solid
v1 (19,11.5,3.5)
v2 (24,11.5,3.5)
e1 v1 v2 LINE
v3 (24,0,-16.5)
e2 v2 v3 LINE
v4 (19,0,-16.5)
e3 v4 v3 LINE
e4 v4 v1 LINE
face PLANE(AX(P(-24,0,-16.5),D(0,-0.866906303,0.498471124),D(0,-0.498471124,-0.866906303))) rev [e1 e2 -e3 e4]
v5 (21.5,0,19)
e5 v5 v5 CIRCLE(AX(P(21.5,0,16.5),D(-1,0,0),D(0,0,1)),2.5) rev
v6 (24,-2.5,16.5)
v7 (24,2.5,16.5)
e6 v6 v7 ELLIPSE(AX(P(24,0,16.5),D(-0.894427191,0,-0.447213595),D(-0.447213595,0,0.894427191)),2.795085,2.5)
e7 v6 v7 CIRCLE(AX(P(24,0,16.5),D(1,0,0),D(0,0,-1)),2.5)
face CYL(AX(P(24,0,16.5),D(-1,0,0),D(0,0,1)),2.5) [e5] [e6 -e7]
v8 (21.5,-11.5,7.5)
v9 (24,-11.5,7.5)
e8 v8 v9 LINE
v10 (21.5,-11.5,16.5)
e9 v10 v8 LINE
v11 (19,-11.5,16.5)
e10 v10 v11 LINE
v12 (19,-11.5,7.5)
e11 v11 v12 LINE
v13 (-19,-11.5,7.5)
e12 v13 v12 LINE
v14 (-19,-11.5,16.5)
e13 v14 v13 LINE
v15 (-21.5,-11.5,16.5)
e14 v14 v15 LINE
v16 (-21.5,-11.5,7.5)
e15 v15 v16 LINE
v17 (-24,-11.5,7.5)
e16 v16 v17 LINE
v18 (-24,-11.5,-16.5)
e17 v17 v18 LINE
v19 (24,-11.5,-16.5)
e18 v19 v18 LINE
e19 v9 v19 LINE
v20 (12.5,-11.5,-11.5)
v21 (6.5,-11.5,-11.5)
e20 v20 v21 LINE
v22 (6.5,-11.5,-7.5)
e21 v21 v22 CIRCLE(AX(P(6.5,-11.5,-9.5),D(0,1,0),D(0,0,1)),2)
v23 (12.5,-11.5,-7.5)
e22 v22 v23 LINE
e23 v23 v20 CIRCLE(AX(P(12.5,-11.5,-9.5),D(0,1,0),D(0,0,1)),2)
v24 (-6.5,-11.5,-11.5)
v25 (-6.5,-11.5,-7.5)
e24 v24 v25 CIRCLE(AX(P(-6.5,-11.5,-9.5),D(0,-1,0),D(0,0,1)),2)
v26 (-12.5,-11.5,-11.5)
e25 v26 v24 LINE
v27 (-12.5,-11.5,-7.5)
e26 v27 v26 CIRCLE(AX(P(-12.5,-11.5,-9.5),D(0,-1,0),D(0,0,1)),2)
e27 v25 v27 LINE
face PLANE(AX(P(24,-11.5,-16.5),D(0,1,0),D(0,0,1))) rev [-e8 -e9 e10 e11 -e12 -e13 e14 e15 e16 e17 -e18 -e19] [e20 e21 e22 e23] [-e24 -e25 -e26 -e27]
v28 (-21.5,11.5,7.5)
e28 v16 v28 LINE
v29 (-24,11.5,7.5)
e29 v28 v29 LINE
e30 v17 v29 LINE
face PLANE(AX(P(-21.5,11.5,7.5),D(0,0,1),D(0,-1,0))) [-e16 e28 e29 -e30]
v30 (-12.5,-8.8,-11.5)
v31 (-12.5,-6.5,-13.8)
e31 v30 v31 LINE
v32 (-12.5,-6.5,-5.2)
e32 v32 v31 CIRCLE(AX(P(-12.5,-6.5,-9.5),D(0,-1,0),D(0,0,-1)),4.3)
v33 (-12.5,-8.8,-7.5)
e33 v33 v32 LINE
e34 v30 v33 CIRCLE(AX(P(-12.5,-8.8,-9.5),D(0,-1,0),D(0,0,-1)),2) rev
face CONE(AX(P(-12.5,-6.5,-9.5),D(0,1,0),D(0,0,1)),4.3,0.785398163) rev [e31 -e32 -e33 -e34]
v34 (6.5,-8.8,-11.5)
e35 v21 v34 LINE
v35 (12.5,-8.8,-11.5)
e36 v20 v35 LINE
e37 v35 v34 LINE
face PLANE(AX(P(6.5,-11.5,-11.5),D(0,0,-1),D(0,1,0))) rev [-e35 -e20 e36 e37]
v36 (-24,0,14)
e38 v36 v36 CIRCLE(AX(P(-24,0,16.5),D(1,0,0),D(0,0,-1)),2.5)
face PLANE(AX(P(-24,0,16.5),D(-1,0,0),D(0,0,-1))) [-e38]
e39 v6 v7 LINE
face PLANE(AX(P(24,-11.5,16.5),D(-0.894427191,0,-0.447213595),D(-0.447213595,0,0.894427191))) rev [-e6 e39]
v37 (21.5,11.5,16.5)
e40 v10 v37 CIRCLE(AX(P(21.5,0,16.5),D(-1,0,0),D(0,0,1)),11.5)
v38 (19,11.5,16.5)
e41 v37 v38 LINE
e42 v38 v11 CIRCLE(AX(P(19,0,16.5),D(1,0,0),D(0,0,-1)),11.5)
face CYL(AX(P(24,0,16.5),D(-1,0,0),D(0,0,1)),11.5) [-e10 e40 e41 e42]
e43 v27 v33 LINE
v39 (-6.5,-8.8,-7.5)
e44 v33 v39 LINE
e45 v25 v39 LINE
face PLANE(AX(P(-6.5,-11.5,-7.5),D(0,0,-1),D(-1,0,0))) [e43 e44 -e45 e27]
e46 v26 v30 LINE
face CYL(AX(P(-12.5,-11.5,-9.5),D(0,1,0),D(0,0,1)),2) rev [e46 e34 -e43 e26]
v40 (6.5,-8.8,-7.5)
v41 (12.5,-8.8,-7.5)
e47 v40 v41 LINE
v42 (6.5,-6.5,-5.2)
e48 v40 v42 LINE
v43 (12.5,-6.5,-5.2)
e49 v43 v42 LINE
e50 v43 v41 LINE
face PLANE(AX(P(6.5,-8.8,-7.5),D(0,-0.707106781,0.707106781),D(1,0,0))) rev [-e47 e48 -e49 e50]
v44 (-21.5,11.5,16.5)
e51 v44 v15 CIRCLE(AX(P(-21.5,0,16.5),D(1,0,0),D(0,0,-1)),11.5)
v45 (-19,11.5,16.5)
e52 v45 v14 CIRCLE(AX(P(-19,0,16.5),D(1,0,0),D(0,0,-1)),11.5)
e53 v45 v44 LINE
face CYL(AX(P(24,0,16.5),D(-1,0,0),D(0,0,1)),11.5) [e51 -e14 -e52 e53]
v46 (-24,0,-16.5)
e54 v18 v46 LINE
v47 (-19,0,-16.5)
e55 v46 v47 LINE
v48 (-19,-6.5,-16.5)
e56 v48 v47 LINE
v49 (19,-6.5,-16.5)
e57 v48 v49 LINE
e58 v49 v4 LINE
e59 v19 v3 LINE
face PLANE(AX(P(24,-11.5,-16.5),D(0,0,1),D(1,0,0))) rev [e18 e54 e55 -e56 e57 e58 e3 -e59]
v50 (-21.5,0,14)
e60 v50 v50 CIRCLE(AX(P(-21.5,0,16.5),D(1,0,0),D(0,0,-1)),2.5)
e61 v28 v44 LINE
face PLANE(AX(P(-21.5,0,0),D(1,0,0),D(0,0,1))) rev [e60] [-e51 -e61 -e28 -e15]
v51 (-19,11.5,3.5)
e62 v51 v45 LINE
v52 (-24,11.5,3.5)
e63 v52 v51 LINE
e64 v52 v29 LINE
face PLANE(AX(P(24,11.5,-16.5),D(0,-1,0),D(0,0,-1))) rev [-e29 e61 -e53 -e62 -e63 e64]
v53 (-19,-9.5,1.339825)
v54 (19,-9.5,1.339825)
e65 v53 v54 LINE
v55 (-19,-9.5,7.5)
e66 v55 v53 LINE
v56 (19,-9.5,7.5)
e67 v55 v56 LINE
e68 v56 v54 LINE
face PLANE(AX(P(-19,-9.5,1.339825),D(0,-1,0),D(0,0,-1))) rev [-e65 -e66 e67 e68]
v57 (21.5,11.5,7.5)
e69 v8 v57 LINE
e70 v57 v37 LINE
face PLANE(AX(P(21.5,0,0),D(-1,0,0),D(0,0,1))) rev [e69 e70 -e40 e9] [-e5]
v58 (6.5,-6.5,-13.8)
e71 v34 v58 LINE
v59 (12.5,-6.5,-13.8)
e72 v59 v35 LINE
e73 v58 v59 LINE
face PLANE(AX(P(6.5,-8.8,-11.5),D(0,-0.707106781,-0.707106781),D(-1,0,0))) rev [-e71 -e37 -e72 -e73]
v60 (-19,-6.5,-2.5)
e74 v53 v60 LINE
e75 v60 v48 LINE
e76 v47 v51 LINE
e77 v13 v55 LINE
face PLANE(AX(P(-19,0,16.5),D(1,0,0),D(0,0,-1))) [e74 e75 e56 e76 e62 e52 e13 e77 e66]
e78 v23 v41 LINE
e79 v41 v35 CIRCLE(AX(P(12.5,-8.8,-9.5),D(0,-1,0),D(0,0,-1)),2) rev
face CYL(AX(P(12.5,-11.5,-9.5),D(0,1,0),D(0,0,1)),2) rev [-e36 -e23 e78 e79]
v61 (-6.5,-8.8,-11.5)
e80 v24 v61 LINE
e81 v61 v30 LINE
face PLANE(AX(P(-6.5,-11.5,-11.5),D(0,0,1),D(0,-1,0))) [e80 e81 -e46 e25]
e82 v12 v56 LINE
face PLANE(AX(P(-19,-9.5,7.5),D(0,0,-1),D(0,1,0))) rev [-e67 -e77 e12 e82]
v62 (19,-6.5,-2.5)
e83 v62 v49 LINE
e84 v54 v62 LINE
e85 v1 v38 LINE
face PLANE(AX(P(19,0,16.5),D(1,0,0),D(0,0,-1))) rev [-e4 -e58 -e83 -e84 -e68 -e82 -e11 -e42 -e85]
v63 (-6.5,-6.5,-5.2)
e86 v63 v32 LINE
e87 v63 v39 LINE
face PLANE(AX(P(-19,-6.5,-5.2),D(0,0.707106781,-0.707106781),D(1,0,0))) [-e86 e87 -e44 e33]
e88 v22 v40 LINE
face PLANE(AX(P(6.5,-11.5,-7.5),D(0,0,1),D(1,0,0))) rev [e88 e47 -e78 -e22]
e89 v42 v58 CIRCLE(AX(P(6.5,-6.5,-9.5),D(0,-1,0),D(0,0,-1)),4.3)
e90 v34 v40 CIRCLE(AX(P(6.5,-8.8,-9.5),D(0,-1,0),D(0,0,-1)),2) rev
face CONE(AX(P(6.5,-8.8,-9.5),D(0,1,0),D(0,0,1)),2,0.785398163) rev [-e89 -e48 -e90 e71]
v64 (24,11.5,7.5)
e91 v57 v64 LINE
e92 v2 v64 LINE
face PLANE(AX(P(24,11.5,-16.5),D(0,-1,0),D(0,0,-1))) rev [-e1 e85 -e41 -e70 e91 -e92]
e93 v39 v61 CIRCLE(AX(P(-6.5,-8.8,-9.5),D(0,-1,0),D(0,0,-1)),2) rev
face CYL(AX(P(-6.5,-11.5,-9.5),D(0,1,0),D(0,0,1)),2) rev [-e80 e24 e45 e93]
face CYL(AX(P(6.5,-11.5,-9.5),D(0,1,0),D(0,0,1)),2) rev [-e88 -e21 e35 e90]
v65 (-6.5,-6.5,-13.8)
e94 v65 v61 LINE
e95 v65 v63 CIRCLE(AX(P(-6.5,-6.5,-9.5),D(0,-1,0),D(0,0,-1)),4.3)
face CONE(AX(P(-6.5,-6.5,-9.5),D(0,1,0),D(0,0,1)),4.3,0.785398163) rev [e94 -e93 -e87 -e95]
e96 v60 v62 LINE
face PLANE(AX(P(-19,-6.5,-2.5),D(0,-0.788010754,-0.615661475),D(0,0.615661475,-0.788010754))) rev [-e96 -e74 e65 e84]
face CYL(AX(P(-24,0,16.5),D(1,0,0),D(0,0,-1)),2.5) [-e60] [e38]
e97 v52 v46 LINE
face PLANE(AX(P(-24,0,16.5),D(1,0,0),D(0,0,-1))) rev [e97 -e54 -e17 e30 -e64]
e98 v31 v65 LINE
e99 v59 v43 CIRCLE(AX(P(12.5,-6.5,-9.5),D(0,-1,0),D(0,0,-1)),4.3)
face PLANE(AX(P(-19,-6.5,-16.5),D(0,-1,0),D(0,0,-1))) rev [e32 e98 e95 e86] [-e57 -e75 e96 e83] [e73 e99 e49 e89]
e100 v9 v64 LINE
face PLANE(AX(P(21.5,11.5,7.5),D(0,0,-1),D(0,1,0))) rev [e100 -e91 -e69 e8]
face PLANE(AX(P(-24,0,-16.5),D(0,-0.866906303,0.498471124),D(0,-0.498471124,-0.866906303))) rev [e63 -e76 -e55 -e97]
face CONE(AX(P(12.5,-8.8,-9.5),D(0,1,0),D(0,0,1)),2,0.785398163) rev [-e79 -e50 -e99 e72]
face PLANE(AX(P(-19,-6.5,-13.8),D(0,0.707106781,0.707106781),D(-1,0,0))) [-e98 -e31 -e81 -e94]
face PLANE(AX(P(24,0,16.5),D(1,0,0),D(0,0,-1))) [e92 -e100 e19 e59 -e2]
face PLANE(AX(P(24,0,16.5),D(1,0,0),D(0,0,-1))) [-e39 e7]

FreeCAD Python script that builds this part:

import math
import FreeCAD as App
import Part
import Sketcher

V = App.Vector
Q = App.Units.Quantity


def edges_at(feature, points):
    """Names of the edges that pass closest to the given points."""
    edges = feature.Shape.Edges
    near = lambda p: min(range(len(edges)), key=lambda i: edges[i].distToShape(Part.Vertex(*p))[0])
    return sorted({f"Edge{near(p) + 1}" for p in points})


def add_polygon(sketch, points):
    """Adds a closed chain of lines whose ends are joined by coincident constraints."""
    first, n = sketch.GeometryCount, len(points)
    for a, b in zip(points, points[1:] + points[:1]):
        sketch.addGeometry(Part.LineSegment(App.Vector(*a, 0), App.Vector(*b, 0)), False)
    for i in range(n):
        sketch.addConstraint(Sketcher.Constraint("Coincident", first + i, 2, first + (i + 1) % n, 1))

doc = App.newDocument("Part")
body = doc.addObject("PartDesign::Body", "Body")

sketch1 = doc.addObject("Sketcher::SketchObject", "Sketch")
body.addObject(sketch1)
sketch1.AttachmentSupport = (doc.YZ_Plane, [""])
sketch1.MapMode = "FlatFace"
sketch1.addGeometry([
    Part.LineSegment(V(-11.5, 16.5, 0), V(-11.5, -16.5, 0)),
    Part.LineSegment(V(-11.5, -16.5, 0), V(11.5, -16.5, 0)),
    Part.LineSegment(V(11.5, -16.5, 0), V(11.5, 16.5, 0)),
    Part.ArcOfCircle(Part.Circle(V(0, 16.5, 0), V(0, 0, 1), 11.5), math.radians(0), math.radians(180)),
], False)
sketch1.addConstraint([
    Sketcher.Constraint("Coincident", 0, 2, 1, 1),
    Sketcher.Constraint("Coincident", 1, 2, 2, 1),
    Sketcher.Constraint("Tangent", 2, 2, 3, 1),
    Sketcher.Constraint("Tangent", 3, 2, 0, 1),
    Sketcher.Constraint("Vertical", 0),
    Sketcher.Constraint("Horizontal", 1),
    Sketcher.Constraint("Vertical", 2),
    Sketcher.Constraint("Symmetric", 0, 2, 2, 2, -1, 1),
    Sketcher.Constraint("Radius", 3, Q("11.5 mm")),
    Sketcher.Constraint("DistanceY", 0, 2, 0, 1, Q("33 mm")),
])
pad1 = doc.addObject("PartDesign::Pad", "Pad")
body.addObject(pad1)
pad1.Profile = sketch1
pad1.Length = 48
pad1.Midplane = True

sketch2 = doc.addObject("Sketcher::SketchObject", "Sketch001")
body.addObject(sketch2)
sketch2.AttachmentSupport = (doc.YZ_Plane, [""])
sketch2.MapMode = "FlatFace"
sketch2.AttachmentOffset = App.Placement(V(0, 0, 24), App.Rotation())
add_polygon(sketch2, [(11.5, 3.5), (0, -16.5), (11.5, -16.5)])
sketch2.addConstraint([
    Sketcher.Constraint("Horizontal", 1),
    Sketcher.Constraint("Vertical", 2),
    Sketcher.Constraint("PointOnObject", 0, 2, -2),
    Sketcher.Constraint("DistanceY", 2, 1, 2, 2, Q("20 mm")),
    Sketcher.Constraint("DistanceX", 1, 1, 1, 2, Q("11.5 mm")),
    Sketcher.Constraint("DistanceY", 0, 2, -1, 1, Q("16.5 mm")),
])
pocket1 = doc.addObject("PartDesign::Pocket", "Pocket")
body.addObject(pocket1)
pocket1.Profile = sketch2
pocket1.Length = 48

sketch3 = doc.addObject("Sketcher::SketchObject", "Sketch002")
body.addObject(sketch3)
sketch3.AttachmentSupport = (doc.YZ_Plane, [""])
sketch3.MapMode = "FlatFace"
sketch3.addGeometry([
    Part.LineSegment(V(-6.5, -16.5, 0), V(0, -16.5, 0)),
    Part.LineSegment(V(0, -16.5, 0), V(11.5, 3.5, 0)),
    Part.LineSegment(V(11.5, 3.5, 0), V(11.5, 16.5, 0)),
    Part.ArcOfCircle(Part.Circle(V(0, 16.5, 0), V(0, 0, 1), 11.5), math.radians(0), math.radians(180)),
    Part.LineSegment(V(-11.5, 16.5, 0), V(-11.5, 7.5, 0)),
    Part.LineSegment(V(-11.5, 7.5, 0), V(-9.5, 7.5, 0)),
    Part.LineSegment(V(-9.5, 7.5, 0), V(-9.5, 1.339825, 0)),
    Part.LineSegment(V(-9.5, 1.339825, 0), V(-6.5, -2.5, 0)),
    Part.LineSegment(V(-6.5, -2.5, 0), V(-6.5, -16.5, 0)),
], False)
sketch3.addConstraint([
    Sketcher.Constraint("Coincident", 0, 2, 1, 1),
    Sketcher.Constraint("Coincident", 1, 2, 2, 1),
    Sketcher.Constraint("Tangent", 2, 2, 3, 1),
    Sketcher.Constraint("Tangent", 3, 2, 4, 1),
    Sketcher.Constraint("Coincident", 4, 2, 5, 1),
    Sketcher.Constraint("Coincident", 5, 2, 6, 1),
    Sketcher.Constraint("Coincident", 6, 2, 7, 1),
    Sketcher.Constraint("Coincident", 7, 2, 8, 1),
    Sketcher.Constraint("Coincident", 8, 2, 0, 1),
    Sketcher.Constraint("Horizontal", 0),
    Sketcher.Constraint("Vertical", 2),
    Sketcher.Constraint("Vertical", 4),
    Sketcher.Constraint("Horizontal", 5),
    Sketcher.Constraint("Vertical", 6),
    Sketcher.Constraint("Vertical", 8),
    Sketcher.Constraint("PointOnObject", 3, 3, -2),
    Sketcher.Constraint("PointOnObject", 0, 2, -2),
    Sketcher.Constraint("Radius", 3, Q("11.5 mm")),
    Sketcher.Constraint("DistanceX", 5, 1, 5, 2, Q("2 mm")),
    Sketcher.Constraint("DistanceY", 2, 1, 2, 2, Q("13 mm")),
    Sketcher.Constraint("DistanceY", 4, 2, 4, 1, Q("9 mm")),
    Sketcher.Constraint("DistanceY", 8, 2, 8, 1, Q("14 mm")),
    Sketcher.Constraint("Angle", 7, Q("-52 deg")),
    Sketcher.Constraint("DistanceX", 0, 1, 0, 2, Q("6.5 mm")),
    Sketcher.Constraint("DistanceY", 0, 2, 3, 3, Q("33 mm")),
    Sketcher.Constraint("DistanceY", -1, 1, 3, 3, Q("16.5 mm")),
])
pocket2 = doc.addObject("PartDesign::Pocket", "Pocket001")
body.addObject(pocket2)
pocket2.Profile = sketch3
pocket2.Length = 38
pocket2.Midplane = True

sketch4 = doc.addObject("Sketcher::SketchObject", "Sketch003")
body.addObject(sketch4)
sketch4.AttachmentSupport = (doc.XZ_Plane, [""])
sketch4.MapMode = "FlatFace"
sketch4.AttachmentOffset = App.Placement(V(0, 0, 6.5), App.Rotation())
sketch4.addGeometry([
    Part.LineSegment(V(12.5, -11.5, 0), V(6.5, -11.5, 0)),
    Part.ArcOfCircle(Part.Circle(V(6.5, -9.5, 0), V(0, 0, 1), 2), math.radians(90), math.radians(270)),
    Part.LineSegment(V(6.5, -7.5, 0), V(12.5, -7.5, 0)),
    Part.ArcOfCircle(Part.Circle(V(12.5, -9.5, 0), V(0, 0, 1), 2), math.radians(-90), math.radians(90)),
], False)
sketch4.addConstraint([
    Sketcher.Constraint("Tangent", 0, 2, 1, 2),
    Sketcher.Constraint("Tangent", 1, 1, 2, 1),
    Sketcher.Constraint("Tangent", 2, 2, 3, 2),
    Sketcher.Constraint("Tangent", 3, 1, 0, 1),
    Sketcher.Constraint("Horizontal", 0),
    Sketcher.Constraint("Horizontal", 2),
    Sketcher.Constraint("Radius", 1, Q("2 mm")),
    Sketcher.Constraint("DistanceX", 0, 2, 0, 1, Q("6 mm")),
    Sketcher.Constraint("DistanceX", -1, 1, 1, 3, Q("6.5 mm")),
    Sketcher.Constraint("DistanceY", 1, 3, -1, 1, Q("9.5 mm")),
])
pocket3 = doc.addObject("PartDesign::Pocket", "Pocket002")
body.addObject(pocket3)
pocket3.Profile = sketch4
pocket3.Type = "ThroughAll"
pocket3.Reversed = True
doc.recompute()

chamfer = doc.addObject("PartDesign::Chamfer", "Chamfer")
body.addObject(chamfer)
chamfer.Base = (pocket3, edges_at(pocket3, [
    (4.5, -6.5, -9.5),
    (9.5, -6.5, -7.5),
    (14.5, -6.5, -9.5),
    (9.5, -6.5, -11.5),
]))
chamfer.Size = 2.3

sketch5 = doc.addObject("Sketcher::SketchObject", "Sketch004")
body.addObject(sketch5)
sketch5.AttachmentSupport = (doc.YZ_Plane, [""])
sketch5.MapMode = "FlatFace"
sketch5.AttachmentOffset = App.Placement(V(0, 0, 24), App.Rotation())
add_polygon(sketch5, [(11.5, 28), (-11.5, 28), (-11.5, 7.5), (11.5, 7.5)])
sketch5.addConstraint([
    Sketcher.Constraint("Horizontal", 0),
    Sketcher.Constraint("Vertical", 1),
    Sketcher.Constraint("Horizontal", 2),
    Sketcher.Constraint("Vertical", 3),
    Sketcher.Constraint("DistanceX", 0, 2, 0, 1, Q("23 mm")),
    Sketcher.Constraint("DistanceY", 1, 2, 1, 1, Q("20.5 mm")),
    Sketcher.Constraint("DistanceY", -1, 1, 0, 2, Q("28 mm")),
    Sketcher.Constraint("DistanceX", 0, 2, -1, 1, Q("11.5 mm")),
])
pocket4 = doc.addObject("PartDesign::Pocket", "Pocket003")
body.addObject(pocket4)
pocket4.Profile = sketch5
pocket4.Length = 2.5

sketch6 = doc.addObject("Sketcher::SketchObject", "Sketch005")
body.addObject(sketch6)
sketch6.AttachmentSupport = (doc.YZ_Plane, [""])
sketch6.MapMode = "FlatFace"
sketch6.AttachmentOffset = App.Placement(V(0, 0, 21.5), App.Rotation())
sketch6.addGeometry(Part.Circle(V(0, 16.5, 0), V(0, 0, 1), 2.5), False)
sketch6.addConstraint([
    Sketcher.Constraint("PointOnObject", 0, 3, -2),
    Sketcher.Constraint("Diameter", 0, Q("5 mm")),
    Sketcher.Constraint("DistanceY", -1, 1, 0, 3, Q("16.5 mm")),
])
pad2 = doc.addObject("PartDesign::Pad", "Pad001")
body.addObject(pad2)
pad2.Profile = sketch6
pad2.Length = 2.5

sketch7 = doc.addObject("Sketcher::SketchObject", "Sketch006")
body.addObject(sketch7)
sketch7.AttachmentSupport = (doc.XZ_Plane, [""])
sketch7.MapMode = "FlatFace"
sketch7.AttachmentOffset = App.Placement(V(0, 0, -11.5), App.Rotation())
add_polygon(sketch7, [(24, 16.5), (22.75, 19), (24, 19)])
sketch7.addConstraint([
    Sketcher.Constraint("Horizontal", 1),
    Sketcher.Constraint("Vertical", 2),
    Sketcher.Constraint("DistanceY", 2, 2, 2, 1, Q("2.5 mm")),
    Sketcher.Constraint("DistanceY", -1, 1, 0, 2, Q("19 mm")),
    Sketcher.Constraint("DistanceX", -1, 1, 1, 2, Q("24 mm")),
    Sketcher.Constraint("DistanceX", 1, 1, 1, 2, Q("1.25 mm")),
])
pocket5 = doc.addObject("PartDesign::Pocket", "Pocket004")
body.addObject(pocket5)
pocket5.Profile = sketch7
pocket5.Type = "ThroughAll"
pocket5.Reversed = True
doc.recompute()

mirrored = doc.addObject("PartDesign::Mirrored", "Mirrored")
body.addObject(mirrored)
mirrored.Originals = [pocket3, pocket4, pad2]
mirrored.MirrorPlane = (doc.YZ_Plane, [""])
body.Tip = mirrored
doc.recompute()

chamfer2 = doc.addObject("PartDesign::Chamfer", "Chamfer001")
body.addObject(chamfer2)
chamfer2.Base = (mirrored, edges_at(mirrored, [
    (-4.5, -6.5, -9.5),
    (-9.5, -6.5, -7.5),
    (-14.5, -6.5, -9.5),
    (-9.5, -6.5, -11.5),
]))
chamfer2.Size = 2.3

doc.recompute()
